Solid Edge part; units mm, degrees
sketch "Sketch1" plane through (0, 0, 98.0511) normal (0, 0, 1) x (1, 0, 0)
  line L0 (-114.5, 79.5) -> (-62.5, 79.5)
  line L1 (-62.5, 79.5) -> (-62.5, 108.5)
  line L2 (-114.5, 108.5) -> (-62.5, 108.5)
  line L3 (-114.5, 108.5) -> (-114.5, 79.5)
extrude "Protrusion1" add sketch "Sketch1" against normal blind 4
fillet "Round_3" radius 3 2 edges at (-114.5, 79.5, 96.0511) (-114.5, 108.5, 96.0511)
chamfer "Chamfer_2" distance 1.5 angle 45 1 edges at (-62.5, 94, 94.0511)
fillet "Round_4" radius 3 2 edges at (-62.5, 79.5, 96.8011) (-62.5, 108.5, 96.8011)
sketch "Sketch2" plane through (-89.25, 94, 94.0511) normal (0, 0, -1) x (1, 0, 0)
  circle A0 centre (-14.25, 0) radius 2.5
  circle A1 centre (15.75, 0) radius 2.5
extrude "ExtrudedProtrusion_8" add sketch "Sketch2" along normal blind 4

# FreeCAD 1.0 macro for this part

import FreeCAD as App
import Part
import Sketcher

V = App.Vector


def edges_at(feature, points):
    """Names of the edges that pass closest to the given points."""
    edges = feature.Shape.Edges
    near = lambda p: min(range(len(edges)), key=lambda i: edges[i].distToShape(Part.Vertex(*p))[0])
    return sorted({f"Edge{near(p) + 1}" for p in points})

doc = App.newDocument("Part")
params = doc.addObject("Spreadsheet::Sheet", "Params")
for row, (alias, value) in enumerate([
    ("sketch1_width", "52 mm"),
    ("sketch1_height", "29 mm"),
    ("pad1_length", "4 mm"),
    ("fillet_radius", "3 mm"),
    ("chamfer_size", "1.5 mm"),
    ("fillet2_radius", "3 mm"),
    ("sketch2_diameter", "5 mm"),
    ("pad2_length", "4 mm"),
], start=1):
    params.set(f"A{row}", alias)
    params.set(f"B{row}", "=" + value)
    params.setAlias(f"B{row}", alias)

body = doc.addObject("PartDesign::Body", "Body")

# Sketch on XY plane
sketch1 = doc.addObject("Sketcher::SketchObject", "Sketch")
body.addObject(sketch1)
sketch1.AttachmentSupport = (doc.XY_Plane, [""])
sketch1.MapMode = "FlatFace"
sketch1.AttachmentOffset = App.Placement(V(0, 0, 98.0511), App.Rotation())
sketch1.addGeometry(Part.LineSegment(V(-114.5, 108.5, 0), V(-114.5, 79.5, 0)), False)
sketch1.addGeometry(Part.LineSegment(V(-114.5, 79.5, 0), V(-62.5, 79.5, 0)), False)
sketch1.addGeometry(Part.LineSegment(V(-62.5, 79.5, 0), V(-62.5, 108.5, 0)), False)
sketch1.addGeometry(Part.LineSegment(V(-62.5, 108.5, 0), V(-114.5, 108.5, 0)), False)
sketch1.addConstraint(Sketcher.Constraint("Coincident", 0, 2, 1, 1))
sketch1.addConstraint(Sketcher.Constraint("Coincident", 1, 2, 2, 1))
sketch1.addConstraint(Sketcher.Constraint("Coincident", 2, 2, 3, 1))
sketch1.addConstraint(Sketcher.Constraint("Coincident", 3, 2, 0, 1))
sketch1.addConstraint(Sketcher.Constraint("Vertical", 0))
sketch1.addConstraint(Sketcher.Constraint("Horizontal", 1))
sketch1.addConstraint(Sketcher.Constraint("Vertical", 2))
sketch1.addConstraint(Sketcher.Constraint("Horizontal", 3))
sketch1.addConstraint(Sketcher.Constraint("DistanceX", 1, 1, 1, 2, 52.0))
sketch1.addConstraint(Sketcher.Constraint("DistanceY", 0, 2, 0, 1, 29.0))
sketch1.addConstraint(Sketcher.Constraint("DistanceX", 0, 2, -1, 1, 114.5))
sketch1.addConstraint(Sketcher.Constraint("DistanceY", -1, 1, 0, 2, 79.5))
sketch1.setExpression("Constraints[8]", "Params.sketch1_width")
sketch1.setExpression("Constraints[9]", "Params.sketch1_height")
pad1 = doc.addObject("PartDesign::Pad", "Pad")
body.addObject(pad1)
pad1.Profile = sketch1
pad1.setExpression("Length", "Params.pad1_length")
pad1.Reversed = True
doc.recompute()

fillet = doc.addObject("PartDesign::Fillet", "Fillet")
body.addObject(fillet)
fillet.Base = (pad1, edges_at(pad1, [(-114.5, 79.5, 96.051), (-114.5, 108.5, 96.051)]))
fillet.setExpression("Radius", "Params.fillet_radius")
doc.recompute()

chamfer = doc.addObject("PartDesign::Chamfer", "Chamfer")
body.addObject(chamfer)
chamfer.Base = (fillet, edges_at(fillet, [(-62.5, 94, 94.051)]))
chamfer.setExpression("Size", "Params.chamfer_size")
doc.recompute()

fillet2 = doc.addObject("PartDesign::Fillet", "Fillet001")
body.addObject(fillet2)
fillet2.Base = (chamfer, edges_at(chamfer, [(-62.5, 79.5, 96.801), (-62.5, 108.5, 96.801)]))
fillet2.setExpression("Radius", "Params.fillet2_radius")

# Sketch on XY plane
sketch2 = doc.addObject("Sketcher::SketchObject", "Sketch001")
body.addObject(sketch2)
sketch2.AttachmentSupport = (doc.XY_Plane, [""])
sketch2.MapMode = "FlatFace"
sketch2.AttachmentOffset = App.Placement(V(0, 0, 94.0511), App.Rotation())
sketch2.addGeometry(Part.Circle(V(-103.5, 94, 0), V(0, 0, 1), 2.5), False)
sketch2.addGeometry(Part.Circle(V(-73.5, 94, 0), V(0, 0, 1), 2.5), False)
sketch2.addConstraint(Sketcher.Constraint("Equal", 0, 1))
sketch2.addConstraint(Sketcher.Constraint("Horizontal", 0, 3, 1, 3))
sketch2.addConstraint(Sketcher.Constraint("Diameter", 0, 5.0))
sketch2.addConstraint(Sketcher.Constraint("DistanceY", -1, 1, 0, 3, 94.0))
sketch2.addConstraint(Sketcher.Constraint("DistanceX", 0, 3, 1, 3, 30.0))
sketch2.addConstraint(Sketcher.Constraint("DistanceX", 0, 3, -1, 1, 103.5))
sketch2.setExpression("Constraints[2]", "Params.sketch2_diameter")
pad2 = doc.addObject("PartDesign::Pad", "Pad001")
body.addObject(pad2)
pad2.Profile = sketch2
pad2.setExpression("Length", "Params.pad2_length")
pad2.Reversed = True

doc.recompute()
